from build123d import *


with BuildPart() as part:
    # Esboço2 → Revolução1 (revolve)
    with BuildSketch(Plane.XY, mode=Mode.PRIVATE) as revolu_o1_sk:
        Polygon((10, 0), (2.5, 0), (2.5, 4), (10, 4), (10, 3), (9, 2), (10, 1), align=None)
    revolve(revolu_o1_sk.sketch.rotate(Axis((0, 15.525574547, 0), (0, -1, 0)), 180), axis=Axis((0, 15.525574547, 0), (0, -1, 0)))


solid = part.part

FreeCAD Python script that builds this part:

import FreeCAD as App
import Part
import Sketcher
from FreeCAD import Vector
Q = App.Units.Quantity

doc = App.newDocument("Part")
body = doc.addObject("PartDesign::Body", "Body")

# Sketch on XY plane
sketch1 = body.newObject("Sketcher::SketchObject", "Sketch")
sketch1.AttachmentSupport = (doc.getObject("XY_Plane"), [""])
sketch1.MapMode = "FlatFace"
sketch1.addGeometry([
    Part.LineSegment(Vector(2.5, 0, 0), Vector(10, 0, 0)),  # 0
    Part.LineSegment(Vector(10, 0, 0), Vector(10, 1, 0)),  # 1
    Part.LineSegment(Vector(10, 1, 0), Vector(9, 2, 0)),  # 2
    Part.LineSegment(Vector(9, 2, 0), Vector(10, 3, 0)),  # 3
    Part.LineSegment(Vector(10, 3, 0), Vector(10, 4, 0)),  # 4
    Part.LineSegment(Vector(10, 4, 0), Vector(2.5, 4, 0)),  # 5
    Part.LineSegment(Vector(2.5, 4, 0), Vector(2.5, 0, 0)),  # 6
], False)
sketch1.addConstraint([
    Sketcher.Constraint("Coincident", 0, 2, 1, 1),
    Sketcher.Constraint("Coincident", 1, 2, 2, 1),
    Sketcher.Constraint("Coincident", 2, 2, 3, 1),
    Sketcher.Constraint("Coincident", 3, 2, 4, 1),
    Sketcher.Constraint("Coincident", 4, 2, 5, 1),
    Sketcher.Constraint("Coincident", 5, 2, 6, 1),
    Sketcher.Constraint("Coincident", 6, 2, 0, 1),
    Sketcher.Constraint("Horizontal", 0),
    Sketcher.Constraint("Vertical", 1),
    Sketcher.Constraint("Vertical", 4),
    Sketcher.Constraint("Horizontal", 5),
    Sketcher.Constraint("Vertical", 6),
    Sketcher.Constraint("PointOnObject", 0, 2, -1),
    Sketcher.Constraint("Perpendicular", 2, 3),
    Sketcher.Constraint("Vertical", 1, 2, 3, 2),
    Sketcher.Constraint("Equal", 1, 4),
    Sketcher.Constraint("Equal", 2, 3),
    Sketcher.Constraint("DistanceY", 1, 1, 1, 2, Q("1 mm")),
    Sketcher.Constraint("DistanceY", 6, 2, 6, 1, Q("4 mm")),
    Sketcher.Constraint("DistanceX", 0, 1, 0, 2, Q("7.5 mm")),
    Sketcher.Constraint("DistanceX", -1, 1, 0, 2, Q("10 mm")),
])
revolution = body.newObject("PartDesign::Revolution", "Revolution")
revolution.Profile = sketch1
revolution.ReferenceAxis = (sketch1, ["V_Axis"])
revolution.Angle = 360

doc.recompute()
